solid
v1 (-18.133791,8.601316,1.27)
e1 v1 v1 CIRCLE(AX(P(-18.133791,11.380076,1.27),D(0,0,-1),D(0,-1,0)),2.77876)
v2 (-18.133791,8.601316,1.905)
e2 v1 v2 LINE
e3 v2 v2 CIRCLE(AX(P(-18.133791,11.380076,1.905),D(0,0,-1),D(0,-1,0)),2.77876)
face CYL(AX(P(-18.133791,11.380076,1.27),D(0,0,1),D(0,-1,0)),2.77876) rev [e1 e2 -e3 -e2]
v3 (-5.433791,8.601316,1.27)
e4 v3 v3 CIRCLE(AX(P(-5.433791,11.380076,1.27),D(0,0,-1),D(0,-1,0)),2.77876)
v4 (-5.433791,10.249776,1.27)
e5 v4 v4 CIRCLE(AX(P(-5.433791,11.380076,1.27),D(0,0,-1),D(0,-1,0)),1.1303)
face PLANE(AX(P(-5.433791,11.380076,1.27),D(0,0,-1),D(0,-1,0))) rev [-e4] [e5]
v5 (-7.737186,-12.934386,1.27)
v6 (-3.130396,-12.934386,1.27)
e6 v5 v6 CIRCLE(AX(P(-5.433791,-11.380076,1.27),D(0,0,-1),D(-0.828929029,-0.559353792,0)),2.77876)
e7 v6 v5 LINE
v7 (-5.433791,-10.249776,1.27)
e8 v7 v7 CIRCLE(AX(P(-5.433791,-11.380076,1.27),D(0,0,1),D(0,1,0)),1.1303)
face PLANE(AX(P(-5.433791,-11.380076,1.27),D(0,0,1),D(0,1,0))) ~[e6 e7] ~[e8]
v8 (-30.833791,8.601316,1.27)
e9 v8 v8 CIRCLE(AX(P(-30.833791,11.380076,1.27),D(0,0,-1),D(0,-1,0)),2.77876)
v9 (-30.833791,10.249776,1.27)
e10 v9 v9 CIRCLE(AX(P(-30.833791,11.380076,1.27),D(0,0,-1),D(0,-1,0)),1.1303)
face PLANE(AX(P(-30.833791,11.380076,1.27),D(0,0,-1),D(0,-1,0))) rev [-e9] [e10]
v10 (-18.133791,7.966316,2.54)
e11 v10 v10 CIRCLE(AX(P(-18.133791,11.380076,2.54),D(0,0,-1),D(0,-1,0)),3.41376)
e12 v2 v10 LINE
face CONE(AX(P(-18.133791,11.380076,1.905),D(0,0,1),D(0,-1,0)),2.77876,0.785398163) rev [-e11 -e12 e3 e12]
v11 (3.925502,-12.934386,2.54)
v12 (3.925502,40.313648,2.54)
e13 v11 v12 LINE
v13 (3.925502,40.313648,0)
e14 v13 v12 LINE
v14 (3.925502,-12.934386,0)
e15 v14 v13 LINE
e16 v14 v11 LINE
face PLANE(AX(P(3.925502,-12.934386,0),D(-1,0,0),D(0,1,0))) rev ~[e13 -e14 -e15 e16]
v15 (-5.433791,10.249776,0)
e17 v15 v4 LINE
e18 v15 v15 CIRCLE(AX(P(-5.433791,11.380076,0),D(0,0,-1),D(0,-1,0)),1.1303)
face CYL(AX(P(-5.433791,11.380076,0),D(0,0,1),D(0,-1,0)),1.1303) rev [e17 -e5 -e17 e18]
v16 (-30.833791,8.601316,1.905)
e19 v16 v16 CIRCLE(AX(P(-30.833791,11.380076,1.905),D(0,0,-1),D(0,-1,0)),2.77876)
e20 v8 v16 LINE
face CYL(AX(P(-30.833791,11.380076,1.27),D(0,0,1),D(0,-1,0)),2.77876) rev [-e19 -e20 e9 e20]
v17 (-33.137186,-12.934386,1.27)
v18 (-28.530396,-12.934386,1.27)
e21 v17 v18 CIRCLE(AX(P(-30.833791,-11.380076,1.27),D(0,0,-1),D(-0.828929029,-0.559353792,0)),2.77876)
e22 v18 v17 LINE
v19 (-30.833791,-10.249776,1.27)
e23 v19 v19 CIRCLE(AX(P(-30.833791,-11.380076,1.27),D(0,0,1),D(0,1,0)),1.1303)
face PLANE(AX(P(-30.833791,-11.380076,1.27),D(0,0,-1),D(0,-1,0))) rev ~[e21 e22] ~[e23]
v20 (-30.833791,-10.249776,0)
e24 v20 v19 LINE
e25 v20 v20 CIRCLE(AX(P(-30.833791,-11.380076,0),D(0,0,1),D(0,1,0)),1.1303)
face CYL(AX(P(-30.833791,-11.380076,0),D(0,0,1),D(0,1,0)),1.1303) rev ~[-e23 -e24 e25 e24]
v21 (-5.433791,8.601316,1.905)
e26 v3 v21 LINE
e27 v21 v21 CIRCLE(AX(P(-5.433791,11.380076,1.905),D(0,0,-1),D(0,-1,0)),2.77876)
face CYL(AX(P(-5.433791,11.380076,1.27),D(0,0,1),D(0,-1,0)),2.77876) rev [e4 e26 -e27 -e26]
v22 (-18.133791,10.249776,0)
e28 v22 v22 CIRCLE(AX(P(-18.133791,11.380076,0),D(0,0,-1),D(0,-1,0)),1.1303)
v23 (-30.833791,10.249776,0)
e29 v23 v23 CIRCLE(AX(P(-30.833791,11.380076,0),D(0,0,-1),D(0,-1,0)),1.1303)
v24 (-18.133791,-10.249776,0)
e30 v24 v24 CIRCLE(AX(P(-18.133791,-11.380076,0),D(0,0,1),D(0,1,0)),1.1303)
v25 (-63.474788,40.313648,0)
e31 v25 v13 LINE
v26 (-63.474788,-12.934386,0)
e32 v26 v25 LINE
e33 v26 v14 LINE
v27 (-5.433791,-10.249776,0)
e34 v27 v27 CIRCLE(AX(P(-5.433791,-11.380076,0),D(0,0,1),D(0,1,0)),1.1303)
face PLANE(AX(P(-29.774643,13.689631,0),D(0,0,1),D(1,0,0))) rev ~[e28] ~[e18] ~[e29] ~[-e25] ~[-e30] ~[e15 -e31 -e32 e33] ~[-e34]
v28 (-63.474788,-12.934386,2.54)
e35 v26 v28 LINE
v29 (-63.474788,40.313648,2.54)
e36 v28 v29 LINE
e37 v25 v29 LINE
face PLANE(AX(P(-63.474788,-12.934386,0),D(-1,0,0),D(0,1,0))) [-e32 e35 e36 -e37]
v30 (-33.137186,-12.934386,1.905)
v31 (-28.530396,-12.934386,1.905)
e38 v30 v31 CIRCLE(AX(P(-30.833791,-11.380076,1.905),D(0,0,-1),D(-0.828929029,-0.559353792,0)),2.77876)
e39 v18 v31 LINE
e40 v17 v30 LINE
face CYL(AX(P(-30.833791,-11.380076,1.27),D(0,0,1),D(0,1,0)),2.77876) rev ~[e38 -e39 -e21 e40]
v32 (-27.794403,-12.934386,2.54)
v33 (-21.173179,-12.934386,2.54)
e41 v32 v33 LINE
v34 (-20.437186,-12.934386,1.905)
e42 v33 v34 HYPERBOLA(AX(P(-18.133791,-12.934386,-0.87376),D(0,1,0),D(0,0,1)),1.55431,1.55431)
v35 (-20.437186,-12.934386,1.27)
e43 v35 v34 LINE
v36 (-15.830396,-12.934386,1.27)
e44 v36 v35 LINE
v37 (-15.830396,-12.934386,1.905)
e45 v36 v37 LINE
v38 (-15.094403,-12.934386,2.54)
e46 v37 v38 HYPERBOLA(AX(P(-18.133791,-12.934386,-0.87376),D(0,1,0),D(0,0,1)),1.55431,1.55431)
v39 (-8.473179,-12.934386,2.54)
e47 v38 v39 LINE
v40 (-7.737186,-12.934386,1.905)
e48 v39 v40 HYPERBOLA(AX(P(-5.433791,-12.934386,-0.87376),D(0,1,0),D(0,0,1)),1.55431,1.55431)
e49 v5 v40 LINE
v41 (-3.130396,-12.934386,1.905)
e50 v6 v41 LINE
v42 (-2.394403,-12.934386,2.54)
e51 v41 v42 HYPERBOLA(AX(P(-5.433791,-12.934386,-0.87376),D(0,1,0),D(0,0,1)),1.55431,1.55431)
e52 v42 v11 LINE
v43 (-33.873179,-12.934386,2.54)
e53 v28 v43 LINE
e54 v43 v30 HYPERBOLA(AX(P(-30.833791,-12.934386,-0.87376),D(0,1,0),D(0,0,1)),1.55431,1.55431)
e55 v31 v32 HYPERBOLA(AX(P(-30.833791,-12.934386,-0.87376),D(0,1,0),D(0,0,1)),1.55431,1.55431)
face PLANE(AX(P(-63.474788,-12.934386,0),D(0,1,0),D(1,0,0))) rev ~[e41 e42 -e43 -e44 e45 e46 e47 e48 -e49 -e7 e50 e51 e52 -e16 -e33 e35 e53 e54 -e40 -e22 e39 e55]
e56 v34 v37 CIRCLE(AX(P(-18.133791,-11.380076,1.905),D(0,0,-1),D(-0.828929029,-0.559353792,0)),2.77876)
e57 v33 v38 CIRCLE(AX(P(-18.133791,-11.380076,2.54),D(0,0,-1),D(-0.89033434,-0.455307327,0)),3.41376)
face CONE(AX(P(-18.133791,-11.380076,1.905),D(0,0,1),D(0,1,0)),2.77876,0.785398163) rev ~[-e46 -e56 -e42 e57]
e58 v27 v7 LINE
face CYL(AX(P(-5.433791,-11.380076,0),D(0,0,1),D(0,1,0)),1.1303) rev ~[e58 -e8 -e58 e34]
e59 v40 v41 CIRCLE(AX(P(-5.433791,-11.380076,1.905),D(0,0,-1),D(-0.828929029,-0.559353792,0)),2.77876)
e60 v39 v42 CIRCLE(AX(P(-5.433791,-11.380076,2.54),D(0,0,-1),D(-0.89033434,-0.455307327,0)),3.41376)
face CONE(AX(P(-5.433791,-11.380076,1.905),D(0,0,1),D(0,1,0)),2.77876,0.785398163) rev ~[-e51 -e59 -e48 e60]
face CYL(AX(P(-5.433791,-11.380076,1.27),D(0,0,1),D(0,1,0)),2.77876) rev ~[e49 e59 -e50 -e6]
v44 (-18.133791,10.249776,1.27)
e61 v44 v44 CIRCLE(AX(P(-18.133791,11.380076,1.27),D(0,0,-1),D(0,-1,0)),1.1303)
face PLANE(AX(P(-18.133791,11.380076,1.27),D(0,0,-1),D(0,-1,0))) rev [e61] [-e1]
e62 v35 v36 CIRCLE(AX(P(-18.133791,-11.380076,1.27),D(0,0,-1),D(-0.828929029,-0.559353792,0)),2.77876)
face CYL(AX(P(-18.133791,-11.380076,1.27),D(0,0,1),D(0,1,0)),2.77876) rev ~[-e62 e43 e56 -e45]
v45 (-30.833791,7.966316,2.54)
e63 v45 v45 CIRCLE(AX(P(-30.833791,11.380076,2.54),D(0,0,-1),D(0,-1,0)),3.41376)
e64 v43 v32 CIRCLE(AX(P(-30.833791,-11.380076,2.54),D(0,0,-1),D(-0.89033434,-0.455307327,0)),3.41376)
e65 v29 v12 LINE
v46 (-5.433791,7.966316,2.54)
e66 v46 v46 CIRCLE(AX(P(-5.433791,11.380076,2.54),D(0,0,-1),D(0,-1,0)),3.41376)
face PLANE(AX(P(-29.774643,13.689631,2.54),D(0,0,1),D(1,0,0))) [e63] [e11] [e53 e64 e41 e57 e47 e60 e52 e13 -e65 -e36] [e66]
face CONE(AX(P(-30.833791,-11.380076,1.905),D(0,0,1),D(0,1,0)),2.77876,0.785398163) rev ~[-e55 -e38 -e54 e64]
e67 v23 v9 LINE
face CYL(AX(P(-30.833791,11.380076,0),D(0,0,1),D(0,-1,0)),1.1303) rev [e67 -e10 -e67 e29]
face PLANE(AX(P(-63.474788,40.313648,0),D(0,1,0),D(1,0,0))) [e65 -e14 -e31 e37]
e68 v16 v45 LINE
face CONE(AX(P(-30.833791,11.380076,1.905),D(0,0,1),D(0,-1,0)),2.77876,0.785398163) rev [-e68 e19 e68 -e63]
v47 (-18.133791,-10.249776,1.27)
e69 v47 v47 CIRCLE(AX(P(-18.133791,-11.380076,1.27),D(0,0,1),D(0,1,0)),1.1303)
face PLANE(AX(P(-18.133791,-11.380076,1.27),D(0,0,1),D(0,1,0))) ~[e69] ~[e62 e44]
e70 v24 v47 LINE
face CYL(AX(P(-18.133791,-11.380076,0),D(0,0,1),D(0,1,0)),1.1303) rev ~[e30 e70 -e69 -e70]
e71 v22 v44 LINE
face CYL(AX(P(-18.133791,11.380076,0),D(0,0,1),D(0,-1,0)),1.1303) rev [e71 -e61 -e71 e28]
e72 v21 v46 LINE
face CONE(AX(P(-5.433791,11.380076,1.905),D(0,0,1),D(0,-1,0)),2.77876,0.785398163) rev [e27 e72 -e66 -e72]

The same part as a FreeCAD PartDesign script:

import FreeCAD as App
import Part
import Sketcher

V = App.Vector
Q = App.Units.Quantity

doc = App.newDocument("Part")
params = doc.addObject("Spreadsheet::Sheet", "Params")
for row, (alias, value) in enumerate([
    ("pad1_length", "0.1 in"),
    ("sketch2_height", "0.1 in"),
    ("sketch2_height2", "0.05 in"),
    ("sketch2_height3", "0.025 in"),
    ("groove_angle", "360 deg"),
    ("linearpattern_pitch", "0.5 in"),
    ("sketch3_height", "0.1 in"),
    ("sketch3_height2", "0.05 in"),
    ("sketch3_height3", "0.025 in"),
    ("groove2_angle", "360 deg"),
    ("sketch4_height", "0.1 in"),
    ("sketch4_height2", "0.05 in"),
    ("sketch4_height3", "0.025 in"),
    ("groove3_angle", "360 deg"),
], start=1):
    params.set(f"A{row}", alias)
    params.set(f"B{row}", "=" + value)
    params.setAlias(f"B{row}", alias)

body = doc.addObject("PartDesign::Body", "Body")

# Sketch on XY plane
sketch1 = doc.addObject("Sketcher::SketchObject", "Sketch")
body.addObject(sketch1)
sketch1.AttachmentSupport = (doc.XY_Plane, [""])
sketch1.MapMode = "FlatFace"
sketch1.addGeometry([
    Part.LineSegment(V(-63.474788, 40.313648, 0), V(-63.474788, -12.934386, 0)),
    Part.LineSegment(V(-63.474788, -12.934386, 0), V(3.925502, -12.934386, 0)),
    Part.LineSegment(V(3.925502, -12.934386, 0), V(3.925502, 40.313648, 0)),
    Part.LineSegment(V(3.925502, 40.313648, 0), V(-63.474788, 40.313648, 0)),
], False)
sketch1.addConstraint([
    Sketcher.Constraint("Coincident", 0, 2, 1, 1),
    Sketcher.Constraint("Coincident", 1, 2, 2, 1),
    Sketcher.Constraint("Coincident", 2, 2, 3, 1),
    Sketcher.Constraint("Coincident", 3, 2, 0, 1),
    Sketcher.Constraint("Vertical", 0),
    Sketcher.Constraint("Horizontal", 1),
    Sketcher.Constraint("Vertical", 2),
    Sketcher.Constraint("Horizontal", 3),
    Sketcher.Constraint("DistanceX", 1, 1, 1, 2, 67.40029),
    Sketcher.Constraint("DistanceX", -1, 1, 1, 2, 3.925502),
    Sketcher.Constraint("DistanceY", 0, 2, 0, 1, 53.248034),
    Sketcher.Constraint("DistanceY", 0, 2, -1, 1, 12.934386),
])
pad1 = doc.addObject("PartDesign::Pad", "Pad")
body.addObject(pad1)
pad1.Profile = sketch1
pad1.setExpression("Length", "Params.pad1_length")

# Sketch on YZ plane
sketch2 = doc.addObject("Sketcher::SketchObject", "Sketch001")
body.addObject(sketch2)
sketch2.AttachmentSupport = (doc.YZ_Plane, [""])
sketch2.MapMode = "FlatFace"
sketch2.AttachmentOffset = App.Placement(V(0, 0, -30.833791), App.Rotation())
sketch2.addGeometry([
    Part.LineSegment(V(11.380076, 0, 0), V(11.380076, 2.54, 0)),  # 0
    Part.LineSegment(V(11.380076, 2.54, 0), V(7.966316, 2.54, 0)),  # 1
    Part.LineSegment(V(7.966316, 2.54, 0), V(8.601316, 1.905, 0)),  # 2
    Part.LineSegment(V(8.601316, 1.905, 0), V(8.601316, 1.27, 0)),  # 3
    Part.LineSegment(V(8.601316, 1.27, 0), V(10.249776, 1.27, 0)),  # 4
    Part.LineSegment(V(10.249776, 1.27, 0), V(10.249776, 0, 0)),  # 5
    Part.LineSegment(V(10.249776, 0, 0), V(11.380076, 0, 0)),  # 6
], False)
sketch2.addGeometry(Part.LineSegment(V(11.380076, 2.54, 0), V(11.380076, 0, 0)), True)  # axis
sketch2.addConstraint([
    Sketcher.Constraint("Coincident", 0, 2, 1, 1),
    Sketcher.Constraint("Coincident", 1, 2, 2, 1),
    Sketcher.Constraint("Coincident", 2, 2, 3, 1),
    Sketcher.Constraint("Coincident", 3, 2, 4, 1),
    Sketcher.Constraint("Coincident", 4, 2, 5, 1),
    Sketcher.Constraint("Coincident", 5, 2, 6, 1),
    Sketcher.Constraint("Coincident", 6, 2, 0, 1),
    Sketcher.Constraint("Vertical", 0),
    Sketcher.Constraint("Horizontal", 1),
    Sketcher.Constraint("Vertical", 3),
    Sketcher.Constraint("Horizontal", 4),
    Sketcher.Constraint("Vertical", 5),
    Sketcher.Constraint("Horizontal", 6),
    Sketcher.Constraint("Vertical", 7),
    Sketcher.Constraint("Coincident", 7, 1, 0, 2),
    Sketcher.Constraint("PointOnObject", 5, 2, -1),
    Sketcher.Constraint("PointOnObject", 7, 2, -1),
    Sketcher.Constraint("DistanceY", 0, 1, 0, 2, Q("0.1 in")),
    Sketcher.Constraint("Angle", 2, Q("-45 deg")),
    Sketcher.Constraint("DistanceY", 5, 2, 5, 1, Q("0.05 in")),
    Sketcher.Constraint("DistanceY", 3, 2, 3, 1, Q("0.025 in")),
    Sketcher.Constraint("DistanceX", 1, 2, 1, 1, Q("0.1344 in")),
    Sketcher.Constraint("DistanceX", 4, 1, 4, 2, Q("0.0649 in")),
    Sketcher.Constraint("DistanceX", -1, 1, 0, 2, 11.380076),
])
sketch2.setExpression("Constraints[17]", "Params.sketch2_height")
sketch2.setExpression("Constraints[19]", "Params.sketch2_height2")
sketch2.setExpression("Constraints[20]", "Params.sketch2_height3")
groove = doc.addObject("PartDesign::Groove", "Groove")
body.addObject(groove)
groove.Profile = sketch2
groove.ReferenceAxis = (sketch2, ["Axis0"])
groove.setExpression("Angle", "Params.groove_angle")
doc.recompute()

linearpattern = doc.addObject("PartDesign::LinearPattern", "LinearPattern")
body.addObject(linearpattern)
linearpattern.Originals = [groove]
linearpattern.Direction = (doc.X_Axis, [""])
linearpattern.Mode = "offset"
linearpattern.setExpression("Offset", "Params.linearpattern_pitch")
linearpattern.Occurrences = 3
body.Tip = linearpattern
doc.recompute()

mirrored = doc.addObject("PartDesign::Mirrored", "Mirrored")
body.addObject(mirrored)
mirrored.Originals = [groove]
mirrored.MirrorPlane = (doc.XZ_Plane, [""])
body.Tip = mirrored

# Sketch on YZ plane
sketch3 = doc.addObject("Sketcher::SketchObject", "Sketch002")
body.addObject(sketch3)
sketch3.AttachmentSupport = (doc.YZ_Plane, [""])
sketch3.MapMode = "FlatFace"
sketch3.AttachmentOffset = App.Placement(V(0, 0, -18.133791), App.Rotation())
sketch3.addGeometry([
    Part.LineSegment(V(-11.380076, 2.54, 0), V(-11.380076, 0, 0)),  # 0
    Part.LineSegment(V(-11.380076, 0, 0), V(-10.249776, 0, 0)),  # 1
    Part.LineSegment(V(-10.249776, 0, 0), V(-10.249776, 1.27, 0)),  # 2
    Part.LineSegment(V(-10.249776, 1.27, 0), V(-8.601316, 1.27, 0)),  # 3
    Part.LineSegment(V(-8.601316, 1.27, 0), V(-8.601316, 1.905, 0)),  # 4
    Part.LineSegment(V(-8.601316, 1.905, 0), V(-7.966316, 2.54, 0)),  # 5
    Part.LineSegment(V(-7.966316, 2.54, 0), V(-11.380076, 2.54, 0)),  # 6
], False)
sketch3.addGeometry(Part.LineSegment(V(-11.380076, 0, 0), V(-11.380076, 2.54, 0)), True)  # axis
sketch3.addConstraint([
    Sketcher.Constraint("Coincident", 0, 2, 1, 1),
    Sketcher.Constraint("Coincident", 1, 2, 2, 1),
    Sketcher.Constraint("Coincident", 2, 2, 3, 1),
    Sketcher.Constraint("Coincident", 3, 2, 4, 1),
    Sketcher.Constraint("Coincident", 4, 2, 5, 1),
    Sketcher.Constraint("Coincident", 5, 2, 6, 1),
    Sketcher.Constraint("Coincident", 6, 2, 0, 1),
    Sketcher.Constraint("Vertical", 0),
    Sketcher.Constraint("Horizontal", 1),
    Sketcher.Constraint("Vertical", 2),
    Sketcher.Constraint("Horizontal", 3),
    Sketcher.Constraint("Vertical", 4),
    Sketcher.Constraint("Horizontal", 6),
    Sketcher.Constraint("Vertical", 7),
    Sketcher.Constraint("Coincident", 7, 1, 0, 2),
    Sketcher.Constraint("PointOnObject", 0, 2, -1),
    Sketcher.Constraint("Horizontal", 5, 2, 7, 2),
    Sketcher.Constraint("DistanceY", 0, 2, 0, 1, Q("0.1 in")),
    Sketcher.Constraint("Angle", 5, Q("45 deg")),
    Sketcher.Constraint("DistanceY", 2, 1, 2, 2, Q("0.05 in")),
    Sketcher.Constraint("DistanceY", 4, 1, 4, 2, Q("0.025 in")),
    Sketcher.Constraint("DistanceX", 1, 1, 1, 2, Q("0.0445 in")),
    Sketcher.Constraint("DistanceX", 3, 1, 3, 2, Q("0.0649 in")),
    Sketcher.Constraint("DistanceX", 0, 2, -1, 1, 11.380076),
])
sketch3.setExpression("Constraints[17]", "Params.sketch3_height")
sketch3.setExpression("Constraints[19]", "Params.sketch3_height2")
sketch3.setExpression("Constraints[20]", "Params.sketch3_height3")
groove2 = doc.addObject("PartDesign::Groove", "Groove001")
body.addObject(groove2)
groove2.Profile = sketch3
groove2.ReferenceAxis = (sketch3, ["Axis0"])
groove2.setExpression("Angle", "Params.groove2_angle")

# Sketch on YZ plane
sketch4 = doc.addObject("Sketcher::SketchObject", "Sketch003")
body.addObject(sketch4)
sketch4.AttachmentSupport = (doc.YZ_Plane, [""])
sketch4.MapMode = "FlatFace"
sketch4.AttachmentOffset = App.Placement(V(0, 0, -5.433791), App.Rotation())
sketch4.addGeometry([
    Part.LineSegment(V(-11.380076, 2.54, 0), V(-11.380076, 0, 0)),  # 0
    Part.LineSegment(V(-11.380076, 0, 0), V(-10.249776, 0, 0)),  # 1
    Part.LineSegment(V(-10.249776, 0, 0), V(-10.249776, 1.27, 0)),  # 2
    Part.LineSegment(V(-10.249776, 1.27, 0), V(-8.601316, 1.27, 0)),  # 3
    Part.LineSegment(V(-8.601316, 1.27, 0), V(-8.601316, 1.905, 0)),  # 4
    Part.LineSegment(V(-8.601316, 1.905, 0), V(-7.966316, 2.54, 0)),  # 5
    Part.LineSegment(V(-7.966316, 2.54, 0), V(-11.380076, 2.54, 0)),  # 6
], False)
sketch4.addGeometry(Part.LineSegment(V(-11.380076, 0, 0), V(-11.380076, 2.54, 0)), True)  # axis
sketch4.addConstraint([
    Sketcher.Constraint("Coincident", 0, 2, 1, 1),
    Sketcher.Constraint("Coincident", 1, 2, 2, 1),
    Sketcher.Constraint("Coincident", 2, 2, 3, 1),
    Sketcher.Constraint("Coincident", 3, 2, 4, 1),
    Sketcher.Constraint("Coincident", 4, 2, 5, 1),
    Sketcher.Constraint("Coincident", 5, 2, 6, 1),
    Sketcher.Constraint("Coincident", 6, 2, 0, 1),
    Sketcher.Constraint("Vertical", 0),
    Sketcher.Constraint("Horizontal", 1),
    Sketcher.Constraint("Vertical", 2),
    Sketcher.Constraint("Horizontal", 3),
    Sketcher.Constraint("Vertical", 4),
    Sketcher.Constraint("Horizontal", 6),
    Sketcher.Constraint("Vertical", 7),
    Sketcher.Constraint("Coincident", 7, 1, 0, 2),
    Sketcher.Constraint("PointOnObject", 0, 2, -1),
    Sketcher.Constraint("Horizontal", 5, 2, 7, 2),
    Sketcher.Constraint("DistanceY", 0, 2, 0, 1, Q("0.1 in")),
    Sketcher.Constraint("Angle", 5, Q("45 deg")),
    Sketcher.Constraint("DistanceY", 2, 1, 2, 2, Q("0.05 in")),
    Sketcher.Constraint("DistanceY", 4, 1, 4, 2, Q("0.025 in")),
    Sketcher.Constraint("DistanceX", 1, 1, 1, 2, Q("0.0445 in")),
    Sketcher.Constraint("DistanceX", 3, 1, 3, 2, Q("0.0649 in")),
    Sketcher.Constraint("DistanceX", 0, 2, -1, 1, 11.380076),
])
sketch4.setExpression("Constraints[17]", "Params.sketch4_height")
sketch4.setExpression("Constraints[19]", "Params.sketch4_height2")
sketch4.setExpression("Constraints[20]", "Params.sketch4_height3")
groove3 = doc.addObject("PartDesign::Groove", "Groove002")
body.addObject(groove3)
groove3.Profile = sketch4
groove3.ReferenceAxis = (sketch4, ["Axis0"])
groove3.setExpression("Angle", "Params.groove3_angle")

doc.recompute()
